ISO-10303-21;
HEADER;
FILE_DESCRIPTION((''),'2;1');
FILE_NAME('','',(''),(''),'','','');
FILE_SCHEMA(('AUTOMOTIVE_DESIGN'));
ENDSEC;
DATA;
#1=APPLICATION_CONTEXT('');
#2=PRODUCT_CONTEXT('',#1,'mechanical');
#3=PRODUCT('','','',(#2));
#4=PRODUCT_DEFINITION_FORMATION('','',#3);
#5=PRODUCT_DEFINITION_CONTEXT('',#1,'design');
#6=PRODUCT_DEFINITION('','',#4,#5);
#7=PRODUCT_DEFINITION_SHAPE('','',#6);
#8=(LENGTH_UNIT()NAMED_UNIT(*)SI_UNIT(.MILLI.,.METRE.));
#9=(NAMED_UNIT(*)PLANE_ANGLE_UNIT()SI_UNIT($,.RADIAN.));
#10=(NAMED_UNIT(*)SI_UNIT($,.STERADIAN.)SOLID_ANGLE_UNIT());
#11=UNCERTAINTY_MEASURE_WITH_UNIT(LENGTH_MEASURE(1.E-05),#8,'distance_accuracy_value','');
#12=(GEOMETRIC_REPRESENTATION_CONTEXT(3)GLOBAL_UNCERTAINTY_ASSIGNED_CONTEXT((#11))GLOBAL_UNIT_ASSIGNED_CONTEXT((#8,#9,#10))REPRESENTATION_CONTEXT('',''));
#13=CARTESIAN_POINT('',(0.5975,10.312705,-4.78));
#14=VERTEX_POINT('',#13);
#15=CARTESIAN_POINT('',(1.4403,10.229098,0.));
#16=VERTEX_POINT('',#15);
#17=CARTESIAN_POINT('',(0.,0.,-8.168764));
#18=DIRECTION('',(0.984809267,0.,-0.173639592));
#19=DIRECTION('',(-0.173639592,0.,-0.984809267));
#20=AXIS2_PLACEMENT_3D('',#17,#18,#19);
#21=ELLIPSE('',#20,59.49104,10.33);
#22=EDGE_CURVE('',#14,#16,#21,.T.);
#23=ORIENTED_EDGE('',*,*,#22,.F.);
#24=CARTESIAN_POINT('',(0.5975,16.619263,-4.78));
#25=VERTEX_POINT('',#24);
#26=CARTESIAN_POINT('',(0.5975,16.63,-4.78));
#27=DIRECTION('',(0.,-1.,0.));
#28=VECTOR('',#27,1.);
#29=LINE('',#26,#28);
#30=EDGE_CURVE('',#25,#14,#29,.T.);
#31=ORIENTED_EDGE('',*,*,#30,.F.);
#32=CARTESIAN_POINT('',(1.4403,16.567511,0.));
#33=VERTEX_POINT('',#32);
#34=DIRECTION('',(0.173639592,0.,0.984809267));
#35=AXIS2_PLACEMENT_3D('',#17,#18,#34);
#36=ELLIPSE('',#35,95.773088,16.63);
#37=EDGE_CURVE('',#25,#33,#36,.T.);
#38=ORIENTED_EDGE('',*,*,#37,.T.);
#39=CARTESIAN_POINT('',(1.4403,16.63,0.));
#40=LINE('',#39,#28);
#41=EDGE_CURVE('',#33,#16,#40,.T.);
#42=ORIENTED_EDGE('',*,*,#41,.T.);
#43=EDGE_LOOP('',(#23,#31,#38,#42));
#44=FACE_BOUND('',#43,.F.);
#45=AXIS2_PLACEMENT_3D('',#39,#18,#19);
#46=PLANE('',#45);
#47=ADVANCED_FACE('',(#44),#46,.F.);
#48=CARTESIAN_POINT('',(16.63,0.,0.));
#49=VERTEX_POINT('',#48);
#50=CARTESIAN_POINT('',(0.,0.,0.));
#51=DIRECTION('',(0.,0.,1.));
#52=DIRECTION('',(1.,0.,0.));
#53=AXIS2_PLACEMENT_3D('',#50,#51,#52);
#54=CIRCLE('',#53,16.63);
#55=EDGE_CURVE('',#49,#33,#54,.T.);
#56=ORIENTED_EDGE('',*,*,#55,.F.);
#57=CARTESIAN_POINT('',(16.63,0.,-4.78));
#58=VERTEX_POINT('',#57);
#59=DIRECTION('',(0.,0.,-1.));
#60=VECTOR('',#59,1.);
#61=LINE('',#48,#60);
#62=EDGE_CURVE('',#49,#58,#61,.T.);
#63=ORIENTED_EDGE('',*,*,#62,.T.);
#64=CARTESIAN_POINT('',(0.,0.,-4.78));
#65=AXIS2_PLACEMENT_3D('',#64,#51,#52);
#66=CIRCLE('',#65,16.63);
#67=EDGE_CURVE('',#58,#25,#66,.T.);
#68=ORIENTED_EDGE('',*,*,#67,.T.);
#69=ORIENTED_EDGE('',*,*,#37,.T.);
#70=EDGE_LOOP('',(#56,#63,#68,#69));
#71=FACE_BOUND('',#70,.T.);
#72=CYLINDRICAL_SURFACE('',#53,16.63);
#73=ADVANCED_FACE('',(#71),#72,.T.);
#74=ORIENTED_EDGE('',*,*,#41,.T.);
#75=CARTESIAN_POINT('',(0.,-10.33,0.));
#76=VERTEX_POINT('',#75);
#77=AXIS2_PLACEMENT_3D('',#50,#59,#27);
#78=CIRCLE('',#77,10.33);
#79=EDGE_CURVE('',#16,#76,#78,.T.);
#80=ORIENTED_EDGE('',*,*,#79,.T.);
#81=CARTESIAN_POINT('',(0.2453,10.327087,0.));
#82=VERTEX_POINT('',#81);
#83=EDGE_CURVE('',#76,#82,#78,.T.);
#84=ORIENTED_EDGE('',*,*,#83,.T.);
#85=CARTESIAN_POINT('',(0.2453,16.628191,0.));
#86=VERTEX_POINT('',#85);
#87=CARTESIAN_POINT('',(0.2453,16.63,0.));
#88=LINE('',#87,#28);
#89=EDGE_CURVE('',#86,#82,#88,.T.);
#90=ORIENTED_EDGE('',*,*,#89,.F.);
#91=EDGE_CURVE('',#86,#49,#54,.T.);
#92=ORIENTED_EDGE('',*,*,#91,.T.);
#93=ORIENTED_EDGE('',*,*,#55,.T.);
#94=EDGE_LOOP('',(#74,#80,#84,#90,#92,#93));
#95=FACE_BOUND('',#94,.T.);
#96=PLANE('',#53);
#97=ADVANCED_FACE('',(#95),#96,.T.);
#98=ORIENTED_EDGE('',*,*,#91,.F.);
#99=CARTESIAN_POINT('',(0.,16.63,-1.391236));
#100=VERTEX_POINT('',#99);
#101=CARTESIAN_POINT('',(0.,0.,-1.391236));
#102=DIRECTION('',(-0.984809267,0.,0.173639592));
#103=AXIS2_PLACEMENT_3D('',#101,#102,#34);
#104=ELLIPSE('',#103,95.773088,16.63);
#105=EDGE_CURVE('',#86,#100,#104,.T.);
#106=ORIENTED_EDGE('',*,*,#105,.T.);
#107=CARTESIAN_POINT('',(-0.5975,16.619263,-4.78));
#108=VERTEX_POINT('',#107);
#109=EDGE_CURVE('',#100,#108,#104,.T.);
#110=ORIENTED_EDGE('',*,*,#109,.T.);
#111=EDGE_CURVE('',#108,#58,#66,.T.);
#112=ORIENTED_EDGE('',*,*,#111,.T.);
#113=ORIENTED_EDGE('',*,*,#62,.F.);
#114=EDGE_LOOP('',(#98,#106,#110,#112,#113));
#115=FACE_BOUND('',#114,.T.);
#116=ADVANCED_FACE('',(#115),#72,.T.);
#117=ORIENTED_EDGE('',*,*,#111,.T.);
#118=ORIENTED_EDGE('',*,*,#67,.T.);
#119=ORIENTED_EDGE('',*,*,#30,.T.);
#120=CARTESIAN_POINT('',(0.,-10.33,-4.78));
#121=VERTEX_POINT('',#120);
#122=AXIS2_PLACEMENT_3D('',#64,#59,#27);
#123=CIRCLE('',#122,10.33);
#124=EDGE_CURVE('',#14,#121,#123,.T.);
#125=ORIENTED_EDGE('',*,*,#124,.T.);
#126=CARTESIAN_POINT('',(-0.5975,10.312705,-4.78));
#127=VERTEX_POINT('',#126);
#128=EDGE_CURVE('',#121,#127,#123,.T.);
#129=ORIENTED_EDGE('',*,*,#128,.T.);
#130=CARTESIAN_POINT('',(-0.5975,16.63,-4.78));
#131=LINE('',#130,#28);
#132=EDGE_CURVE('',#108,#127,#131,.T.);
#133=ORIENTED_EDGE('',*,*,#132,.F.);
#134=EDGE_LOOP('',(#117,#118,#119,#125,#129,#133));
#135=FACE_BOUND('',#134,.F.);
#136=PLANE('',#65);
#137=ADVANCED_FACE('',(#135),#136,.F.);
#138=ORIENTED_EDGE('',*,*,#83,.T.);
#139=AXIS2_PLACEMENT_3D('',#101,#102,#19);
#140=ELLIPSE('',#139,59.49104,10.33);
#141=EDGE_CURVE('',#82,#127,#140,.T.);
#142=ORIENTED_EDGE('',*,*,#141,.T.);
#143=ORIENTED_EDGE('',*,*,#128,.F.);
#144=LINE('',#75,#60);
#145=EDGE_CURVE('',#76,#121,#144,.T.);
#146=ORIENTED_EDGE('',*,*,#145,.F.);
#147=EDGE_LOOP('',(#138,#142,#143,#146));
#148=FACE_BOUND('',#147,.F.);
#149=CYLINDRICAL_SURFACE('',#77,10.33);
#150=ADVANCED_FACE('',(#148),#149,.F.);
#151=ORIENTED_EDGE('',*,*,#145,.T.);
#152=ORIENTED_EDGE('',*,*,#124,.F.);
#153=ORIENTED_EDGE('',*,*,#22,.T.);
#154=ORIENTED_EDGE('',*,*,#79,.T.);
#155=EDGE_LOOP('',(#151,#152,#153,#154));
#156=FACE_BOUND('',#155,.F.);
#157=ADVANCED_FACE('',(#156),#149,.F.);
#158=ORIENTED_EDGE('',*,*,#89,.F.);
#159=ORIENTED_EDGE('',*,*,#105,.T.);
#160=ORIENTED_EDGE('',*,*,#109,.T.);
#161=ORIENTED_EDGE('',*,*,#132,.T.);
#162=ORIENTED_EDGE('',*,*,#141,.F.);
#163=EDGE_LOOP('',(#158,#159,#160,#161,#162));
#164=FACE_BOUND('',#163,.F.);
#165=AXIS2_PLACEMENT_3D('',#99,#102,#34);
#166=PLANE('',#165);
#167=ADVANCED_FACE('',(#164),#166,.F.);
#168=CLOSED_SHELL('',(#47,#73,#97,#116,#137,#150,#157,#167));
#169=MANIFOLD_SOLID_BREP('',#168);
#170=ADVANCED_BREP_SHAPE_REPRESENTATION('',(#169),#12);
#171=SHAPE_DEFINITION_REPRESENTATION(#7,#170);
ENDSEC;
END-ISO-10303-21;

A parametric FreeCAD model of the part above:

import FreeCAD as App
import Part
import Sketcher

V = App.Vector
Q = App.Units.Quantity


def add_polygon(sketch, points):
    """Adds a closed chain of lines whose ends are joined by coincident constraints."""
    first, n = sketch.GeometryCount, len(points)
    for a, b in zip(points, points[1:] + points[:1]):
        sketch.addGeometry(Part.LineSegment(App.Vector(*a, 0), App.Vector(*b, 0)), False)
    for i in range(n):
        sketch.addConstraint(Sketcher.Constraint("Coincident", first + i, 2, first + (i + 1) % n, 1))

doc = App.newDocument("Part")
body = doc.addObject("PartDesign::Body", "Body")

# Sketch on XY plane
sketch1 = body.newObject("Sketcher::SketchObject", "Sketch")
sketch1.AttachmentSupport = (doc.getObject("XY_Plane"), [""])
sketch1.MapMode = "FlatFace"
sketch1.addGeometry(Part.Circle(V(0, 0, 0), V(0, 0, 1), 17), False)
sketch1.addConstraint(Sketcher.Constraint("Coincident", 0, 3, -1, 1))
sketch1.addConstraint(Sketcher.Constraint("Diameter", 0, Q("33.26 mm")))
pad1 = body.newObject("PartDesign::Pad", "Pad")
pad1.Profile = sketch1
pad1.Length = 4.78
pad1.Reversed = True

# Sketch on XY plane
sketch2 = body.newObject("Sketcher::SketchObject", "Sketch001")
sketch2.AttachmentSupport = (doc.getObject("XY_Plane"), [""])
sketch2.MapMode = "FlatFace"
sketch2.addGeometry(Part.Circle(V(0, 0, 0), V(0, 0, 1), 10), False)
sketch2.addConstraint(Sketcher.Constraint("Coincident", 0, 3, -1, 1))
sketch2.addConstraint(Sketcher.Constraint("Diameter", 0, Q("20.66 mm")))
doc.recompute()
hole = body.newObject("PartDesign::Hole", "Hole")
hole.Profile = sketch2
hole.ThreadType = "None"
hole.Diameter = 20.66
hole.DepthType = "ThroughAll"

# Sketch on XZ plane
sketch3 = body.newObject("Sketcher::SketchObject", "Sketch002")
sketch3.AttachmentSupport = (doc.getObject("XZ_Plane"), [""])
sketch3.MapMode = "FlatFace"
sketch3.AttachmentOffset = App.Placement(V(0, 0, -16.63), App.Rotation())
add_polygon(sketch3, [(0.2, 0), (1.4, 0), (0.6, -4.8), (-0.6, -4.8)])  # lines 0-3
sketch3.addConstraint(Sketcher.Constraint("Horizontal", 0))
sketch3.addConstraint(Sketcher.Constraint("Horizontal", 2))
sketch3.addConstraint(Sketcher.Constraint("PointOnObject", 0, 2, -1))
sketch3.addConstraint(Sketcher.Constraint("Parallel", 1, 3))
sketch3.addConstraint(Sketcher.Constraint("Angle", 3, Q("80.0005 deg")))
sketch3.addConstraint(Sketcher.Constraint("DistanceX", -1, 1, 1, 2, Q("0.5975 mm")))
sketch3.addConstraint(Sketcher.Constraint("DistanceX", 2, 2, -1, 1, Q("0.5975 mm")))
sketch3.addConstraint(Sketcher.Constraint("DistanceY", 1, 2, -1, 1, Q("4.78 mm")))
pocket1 = body.newObject("PartDesign::Pocket", "Pocket")
pocket1.Profile = sketch3
pocket1.Length = 16.63
pocket1.Reversed = True

doc.recompute()
